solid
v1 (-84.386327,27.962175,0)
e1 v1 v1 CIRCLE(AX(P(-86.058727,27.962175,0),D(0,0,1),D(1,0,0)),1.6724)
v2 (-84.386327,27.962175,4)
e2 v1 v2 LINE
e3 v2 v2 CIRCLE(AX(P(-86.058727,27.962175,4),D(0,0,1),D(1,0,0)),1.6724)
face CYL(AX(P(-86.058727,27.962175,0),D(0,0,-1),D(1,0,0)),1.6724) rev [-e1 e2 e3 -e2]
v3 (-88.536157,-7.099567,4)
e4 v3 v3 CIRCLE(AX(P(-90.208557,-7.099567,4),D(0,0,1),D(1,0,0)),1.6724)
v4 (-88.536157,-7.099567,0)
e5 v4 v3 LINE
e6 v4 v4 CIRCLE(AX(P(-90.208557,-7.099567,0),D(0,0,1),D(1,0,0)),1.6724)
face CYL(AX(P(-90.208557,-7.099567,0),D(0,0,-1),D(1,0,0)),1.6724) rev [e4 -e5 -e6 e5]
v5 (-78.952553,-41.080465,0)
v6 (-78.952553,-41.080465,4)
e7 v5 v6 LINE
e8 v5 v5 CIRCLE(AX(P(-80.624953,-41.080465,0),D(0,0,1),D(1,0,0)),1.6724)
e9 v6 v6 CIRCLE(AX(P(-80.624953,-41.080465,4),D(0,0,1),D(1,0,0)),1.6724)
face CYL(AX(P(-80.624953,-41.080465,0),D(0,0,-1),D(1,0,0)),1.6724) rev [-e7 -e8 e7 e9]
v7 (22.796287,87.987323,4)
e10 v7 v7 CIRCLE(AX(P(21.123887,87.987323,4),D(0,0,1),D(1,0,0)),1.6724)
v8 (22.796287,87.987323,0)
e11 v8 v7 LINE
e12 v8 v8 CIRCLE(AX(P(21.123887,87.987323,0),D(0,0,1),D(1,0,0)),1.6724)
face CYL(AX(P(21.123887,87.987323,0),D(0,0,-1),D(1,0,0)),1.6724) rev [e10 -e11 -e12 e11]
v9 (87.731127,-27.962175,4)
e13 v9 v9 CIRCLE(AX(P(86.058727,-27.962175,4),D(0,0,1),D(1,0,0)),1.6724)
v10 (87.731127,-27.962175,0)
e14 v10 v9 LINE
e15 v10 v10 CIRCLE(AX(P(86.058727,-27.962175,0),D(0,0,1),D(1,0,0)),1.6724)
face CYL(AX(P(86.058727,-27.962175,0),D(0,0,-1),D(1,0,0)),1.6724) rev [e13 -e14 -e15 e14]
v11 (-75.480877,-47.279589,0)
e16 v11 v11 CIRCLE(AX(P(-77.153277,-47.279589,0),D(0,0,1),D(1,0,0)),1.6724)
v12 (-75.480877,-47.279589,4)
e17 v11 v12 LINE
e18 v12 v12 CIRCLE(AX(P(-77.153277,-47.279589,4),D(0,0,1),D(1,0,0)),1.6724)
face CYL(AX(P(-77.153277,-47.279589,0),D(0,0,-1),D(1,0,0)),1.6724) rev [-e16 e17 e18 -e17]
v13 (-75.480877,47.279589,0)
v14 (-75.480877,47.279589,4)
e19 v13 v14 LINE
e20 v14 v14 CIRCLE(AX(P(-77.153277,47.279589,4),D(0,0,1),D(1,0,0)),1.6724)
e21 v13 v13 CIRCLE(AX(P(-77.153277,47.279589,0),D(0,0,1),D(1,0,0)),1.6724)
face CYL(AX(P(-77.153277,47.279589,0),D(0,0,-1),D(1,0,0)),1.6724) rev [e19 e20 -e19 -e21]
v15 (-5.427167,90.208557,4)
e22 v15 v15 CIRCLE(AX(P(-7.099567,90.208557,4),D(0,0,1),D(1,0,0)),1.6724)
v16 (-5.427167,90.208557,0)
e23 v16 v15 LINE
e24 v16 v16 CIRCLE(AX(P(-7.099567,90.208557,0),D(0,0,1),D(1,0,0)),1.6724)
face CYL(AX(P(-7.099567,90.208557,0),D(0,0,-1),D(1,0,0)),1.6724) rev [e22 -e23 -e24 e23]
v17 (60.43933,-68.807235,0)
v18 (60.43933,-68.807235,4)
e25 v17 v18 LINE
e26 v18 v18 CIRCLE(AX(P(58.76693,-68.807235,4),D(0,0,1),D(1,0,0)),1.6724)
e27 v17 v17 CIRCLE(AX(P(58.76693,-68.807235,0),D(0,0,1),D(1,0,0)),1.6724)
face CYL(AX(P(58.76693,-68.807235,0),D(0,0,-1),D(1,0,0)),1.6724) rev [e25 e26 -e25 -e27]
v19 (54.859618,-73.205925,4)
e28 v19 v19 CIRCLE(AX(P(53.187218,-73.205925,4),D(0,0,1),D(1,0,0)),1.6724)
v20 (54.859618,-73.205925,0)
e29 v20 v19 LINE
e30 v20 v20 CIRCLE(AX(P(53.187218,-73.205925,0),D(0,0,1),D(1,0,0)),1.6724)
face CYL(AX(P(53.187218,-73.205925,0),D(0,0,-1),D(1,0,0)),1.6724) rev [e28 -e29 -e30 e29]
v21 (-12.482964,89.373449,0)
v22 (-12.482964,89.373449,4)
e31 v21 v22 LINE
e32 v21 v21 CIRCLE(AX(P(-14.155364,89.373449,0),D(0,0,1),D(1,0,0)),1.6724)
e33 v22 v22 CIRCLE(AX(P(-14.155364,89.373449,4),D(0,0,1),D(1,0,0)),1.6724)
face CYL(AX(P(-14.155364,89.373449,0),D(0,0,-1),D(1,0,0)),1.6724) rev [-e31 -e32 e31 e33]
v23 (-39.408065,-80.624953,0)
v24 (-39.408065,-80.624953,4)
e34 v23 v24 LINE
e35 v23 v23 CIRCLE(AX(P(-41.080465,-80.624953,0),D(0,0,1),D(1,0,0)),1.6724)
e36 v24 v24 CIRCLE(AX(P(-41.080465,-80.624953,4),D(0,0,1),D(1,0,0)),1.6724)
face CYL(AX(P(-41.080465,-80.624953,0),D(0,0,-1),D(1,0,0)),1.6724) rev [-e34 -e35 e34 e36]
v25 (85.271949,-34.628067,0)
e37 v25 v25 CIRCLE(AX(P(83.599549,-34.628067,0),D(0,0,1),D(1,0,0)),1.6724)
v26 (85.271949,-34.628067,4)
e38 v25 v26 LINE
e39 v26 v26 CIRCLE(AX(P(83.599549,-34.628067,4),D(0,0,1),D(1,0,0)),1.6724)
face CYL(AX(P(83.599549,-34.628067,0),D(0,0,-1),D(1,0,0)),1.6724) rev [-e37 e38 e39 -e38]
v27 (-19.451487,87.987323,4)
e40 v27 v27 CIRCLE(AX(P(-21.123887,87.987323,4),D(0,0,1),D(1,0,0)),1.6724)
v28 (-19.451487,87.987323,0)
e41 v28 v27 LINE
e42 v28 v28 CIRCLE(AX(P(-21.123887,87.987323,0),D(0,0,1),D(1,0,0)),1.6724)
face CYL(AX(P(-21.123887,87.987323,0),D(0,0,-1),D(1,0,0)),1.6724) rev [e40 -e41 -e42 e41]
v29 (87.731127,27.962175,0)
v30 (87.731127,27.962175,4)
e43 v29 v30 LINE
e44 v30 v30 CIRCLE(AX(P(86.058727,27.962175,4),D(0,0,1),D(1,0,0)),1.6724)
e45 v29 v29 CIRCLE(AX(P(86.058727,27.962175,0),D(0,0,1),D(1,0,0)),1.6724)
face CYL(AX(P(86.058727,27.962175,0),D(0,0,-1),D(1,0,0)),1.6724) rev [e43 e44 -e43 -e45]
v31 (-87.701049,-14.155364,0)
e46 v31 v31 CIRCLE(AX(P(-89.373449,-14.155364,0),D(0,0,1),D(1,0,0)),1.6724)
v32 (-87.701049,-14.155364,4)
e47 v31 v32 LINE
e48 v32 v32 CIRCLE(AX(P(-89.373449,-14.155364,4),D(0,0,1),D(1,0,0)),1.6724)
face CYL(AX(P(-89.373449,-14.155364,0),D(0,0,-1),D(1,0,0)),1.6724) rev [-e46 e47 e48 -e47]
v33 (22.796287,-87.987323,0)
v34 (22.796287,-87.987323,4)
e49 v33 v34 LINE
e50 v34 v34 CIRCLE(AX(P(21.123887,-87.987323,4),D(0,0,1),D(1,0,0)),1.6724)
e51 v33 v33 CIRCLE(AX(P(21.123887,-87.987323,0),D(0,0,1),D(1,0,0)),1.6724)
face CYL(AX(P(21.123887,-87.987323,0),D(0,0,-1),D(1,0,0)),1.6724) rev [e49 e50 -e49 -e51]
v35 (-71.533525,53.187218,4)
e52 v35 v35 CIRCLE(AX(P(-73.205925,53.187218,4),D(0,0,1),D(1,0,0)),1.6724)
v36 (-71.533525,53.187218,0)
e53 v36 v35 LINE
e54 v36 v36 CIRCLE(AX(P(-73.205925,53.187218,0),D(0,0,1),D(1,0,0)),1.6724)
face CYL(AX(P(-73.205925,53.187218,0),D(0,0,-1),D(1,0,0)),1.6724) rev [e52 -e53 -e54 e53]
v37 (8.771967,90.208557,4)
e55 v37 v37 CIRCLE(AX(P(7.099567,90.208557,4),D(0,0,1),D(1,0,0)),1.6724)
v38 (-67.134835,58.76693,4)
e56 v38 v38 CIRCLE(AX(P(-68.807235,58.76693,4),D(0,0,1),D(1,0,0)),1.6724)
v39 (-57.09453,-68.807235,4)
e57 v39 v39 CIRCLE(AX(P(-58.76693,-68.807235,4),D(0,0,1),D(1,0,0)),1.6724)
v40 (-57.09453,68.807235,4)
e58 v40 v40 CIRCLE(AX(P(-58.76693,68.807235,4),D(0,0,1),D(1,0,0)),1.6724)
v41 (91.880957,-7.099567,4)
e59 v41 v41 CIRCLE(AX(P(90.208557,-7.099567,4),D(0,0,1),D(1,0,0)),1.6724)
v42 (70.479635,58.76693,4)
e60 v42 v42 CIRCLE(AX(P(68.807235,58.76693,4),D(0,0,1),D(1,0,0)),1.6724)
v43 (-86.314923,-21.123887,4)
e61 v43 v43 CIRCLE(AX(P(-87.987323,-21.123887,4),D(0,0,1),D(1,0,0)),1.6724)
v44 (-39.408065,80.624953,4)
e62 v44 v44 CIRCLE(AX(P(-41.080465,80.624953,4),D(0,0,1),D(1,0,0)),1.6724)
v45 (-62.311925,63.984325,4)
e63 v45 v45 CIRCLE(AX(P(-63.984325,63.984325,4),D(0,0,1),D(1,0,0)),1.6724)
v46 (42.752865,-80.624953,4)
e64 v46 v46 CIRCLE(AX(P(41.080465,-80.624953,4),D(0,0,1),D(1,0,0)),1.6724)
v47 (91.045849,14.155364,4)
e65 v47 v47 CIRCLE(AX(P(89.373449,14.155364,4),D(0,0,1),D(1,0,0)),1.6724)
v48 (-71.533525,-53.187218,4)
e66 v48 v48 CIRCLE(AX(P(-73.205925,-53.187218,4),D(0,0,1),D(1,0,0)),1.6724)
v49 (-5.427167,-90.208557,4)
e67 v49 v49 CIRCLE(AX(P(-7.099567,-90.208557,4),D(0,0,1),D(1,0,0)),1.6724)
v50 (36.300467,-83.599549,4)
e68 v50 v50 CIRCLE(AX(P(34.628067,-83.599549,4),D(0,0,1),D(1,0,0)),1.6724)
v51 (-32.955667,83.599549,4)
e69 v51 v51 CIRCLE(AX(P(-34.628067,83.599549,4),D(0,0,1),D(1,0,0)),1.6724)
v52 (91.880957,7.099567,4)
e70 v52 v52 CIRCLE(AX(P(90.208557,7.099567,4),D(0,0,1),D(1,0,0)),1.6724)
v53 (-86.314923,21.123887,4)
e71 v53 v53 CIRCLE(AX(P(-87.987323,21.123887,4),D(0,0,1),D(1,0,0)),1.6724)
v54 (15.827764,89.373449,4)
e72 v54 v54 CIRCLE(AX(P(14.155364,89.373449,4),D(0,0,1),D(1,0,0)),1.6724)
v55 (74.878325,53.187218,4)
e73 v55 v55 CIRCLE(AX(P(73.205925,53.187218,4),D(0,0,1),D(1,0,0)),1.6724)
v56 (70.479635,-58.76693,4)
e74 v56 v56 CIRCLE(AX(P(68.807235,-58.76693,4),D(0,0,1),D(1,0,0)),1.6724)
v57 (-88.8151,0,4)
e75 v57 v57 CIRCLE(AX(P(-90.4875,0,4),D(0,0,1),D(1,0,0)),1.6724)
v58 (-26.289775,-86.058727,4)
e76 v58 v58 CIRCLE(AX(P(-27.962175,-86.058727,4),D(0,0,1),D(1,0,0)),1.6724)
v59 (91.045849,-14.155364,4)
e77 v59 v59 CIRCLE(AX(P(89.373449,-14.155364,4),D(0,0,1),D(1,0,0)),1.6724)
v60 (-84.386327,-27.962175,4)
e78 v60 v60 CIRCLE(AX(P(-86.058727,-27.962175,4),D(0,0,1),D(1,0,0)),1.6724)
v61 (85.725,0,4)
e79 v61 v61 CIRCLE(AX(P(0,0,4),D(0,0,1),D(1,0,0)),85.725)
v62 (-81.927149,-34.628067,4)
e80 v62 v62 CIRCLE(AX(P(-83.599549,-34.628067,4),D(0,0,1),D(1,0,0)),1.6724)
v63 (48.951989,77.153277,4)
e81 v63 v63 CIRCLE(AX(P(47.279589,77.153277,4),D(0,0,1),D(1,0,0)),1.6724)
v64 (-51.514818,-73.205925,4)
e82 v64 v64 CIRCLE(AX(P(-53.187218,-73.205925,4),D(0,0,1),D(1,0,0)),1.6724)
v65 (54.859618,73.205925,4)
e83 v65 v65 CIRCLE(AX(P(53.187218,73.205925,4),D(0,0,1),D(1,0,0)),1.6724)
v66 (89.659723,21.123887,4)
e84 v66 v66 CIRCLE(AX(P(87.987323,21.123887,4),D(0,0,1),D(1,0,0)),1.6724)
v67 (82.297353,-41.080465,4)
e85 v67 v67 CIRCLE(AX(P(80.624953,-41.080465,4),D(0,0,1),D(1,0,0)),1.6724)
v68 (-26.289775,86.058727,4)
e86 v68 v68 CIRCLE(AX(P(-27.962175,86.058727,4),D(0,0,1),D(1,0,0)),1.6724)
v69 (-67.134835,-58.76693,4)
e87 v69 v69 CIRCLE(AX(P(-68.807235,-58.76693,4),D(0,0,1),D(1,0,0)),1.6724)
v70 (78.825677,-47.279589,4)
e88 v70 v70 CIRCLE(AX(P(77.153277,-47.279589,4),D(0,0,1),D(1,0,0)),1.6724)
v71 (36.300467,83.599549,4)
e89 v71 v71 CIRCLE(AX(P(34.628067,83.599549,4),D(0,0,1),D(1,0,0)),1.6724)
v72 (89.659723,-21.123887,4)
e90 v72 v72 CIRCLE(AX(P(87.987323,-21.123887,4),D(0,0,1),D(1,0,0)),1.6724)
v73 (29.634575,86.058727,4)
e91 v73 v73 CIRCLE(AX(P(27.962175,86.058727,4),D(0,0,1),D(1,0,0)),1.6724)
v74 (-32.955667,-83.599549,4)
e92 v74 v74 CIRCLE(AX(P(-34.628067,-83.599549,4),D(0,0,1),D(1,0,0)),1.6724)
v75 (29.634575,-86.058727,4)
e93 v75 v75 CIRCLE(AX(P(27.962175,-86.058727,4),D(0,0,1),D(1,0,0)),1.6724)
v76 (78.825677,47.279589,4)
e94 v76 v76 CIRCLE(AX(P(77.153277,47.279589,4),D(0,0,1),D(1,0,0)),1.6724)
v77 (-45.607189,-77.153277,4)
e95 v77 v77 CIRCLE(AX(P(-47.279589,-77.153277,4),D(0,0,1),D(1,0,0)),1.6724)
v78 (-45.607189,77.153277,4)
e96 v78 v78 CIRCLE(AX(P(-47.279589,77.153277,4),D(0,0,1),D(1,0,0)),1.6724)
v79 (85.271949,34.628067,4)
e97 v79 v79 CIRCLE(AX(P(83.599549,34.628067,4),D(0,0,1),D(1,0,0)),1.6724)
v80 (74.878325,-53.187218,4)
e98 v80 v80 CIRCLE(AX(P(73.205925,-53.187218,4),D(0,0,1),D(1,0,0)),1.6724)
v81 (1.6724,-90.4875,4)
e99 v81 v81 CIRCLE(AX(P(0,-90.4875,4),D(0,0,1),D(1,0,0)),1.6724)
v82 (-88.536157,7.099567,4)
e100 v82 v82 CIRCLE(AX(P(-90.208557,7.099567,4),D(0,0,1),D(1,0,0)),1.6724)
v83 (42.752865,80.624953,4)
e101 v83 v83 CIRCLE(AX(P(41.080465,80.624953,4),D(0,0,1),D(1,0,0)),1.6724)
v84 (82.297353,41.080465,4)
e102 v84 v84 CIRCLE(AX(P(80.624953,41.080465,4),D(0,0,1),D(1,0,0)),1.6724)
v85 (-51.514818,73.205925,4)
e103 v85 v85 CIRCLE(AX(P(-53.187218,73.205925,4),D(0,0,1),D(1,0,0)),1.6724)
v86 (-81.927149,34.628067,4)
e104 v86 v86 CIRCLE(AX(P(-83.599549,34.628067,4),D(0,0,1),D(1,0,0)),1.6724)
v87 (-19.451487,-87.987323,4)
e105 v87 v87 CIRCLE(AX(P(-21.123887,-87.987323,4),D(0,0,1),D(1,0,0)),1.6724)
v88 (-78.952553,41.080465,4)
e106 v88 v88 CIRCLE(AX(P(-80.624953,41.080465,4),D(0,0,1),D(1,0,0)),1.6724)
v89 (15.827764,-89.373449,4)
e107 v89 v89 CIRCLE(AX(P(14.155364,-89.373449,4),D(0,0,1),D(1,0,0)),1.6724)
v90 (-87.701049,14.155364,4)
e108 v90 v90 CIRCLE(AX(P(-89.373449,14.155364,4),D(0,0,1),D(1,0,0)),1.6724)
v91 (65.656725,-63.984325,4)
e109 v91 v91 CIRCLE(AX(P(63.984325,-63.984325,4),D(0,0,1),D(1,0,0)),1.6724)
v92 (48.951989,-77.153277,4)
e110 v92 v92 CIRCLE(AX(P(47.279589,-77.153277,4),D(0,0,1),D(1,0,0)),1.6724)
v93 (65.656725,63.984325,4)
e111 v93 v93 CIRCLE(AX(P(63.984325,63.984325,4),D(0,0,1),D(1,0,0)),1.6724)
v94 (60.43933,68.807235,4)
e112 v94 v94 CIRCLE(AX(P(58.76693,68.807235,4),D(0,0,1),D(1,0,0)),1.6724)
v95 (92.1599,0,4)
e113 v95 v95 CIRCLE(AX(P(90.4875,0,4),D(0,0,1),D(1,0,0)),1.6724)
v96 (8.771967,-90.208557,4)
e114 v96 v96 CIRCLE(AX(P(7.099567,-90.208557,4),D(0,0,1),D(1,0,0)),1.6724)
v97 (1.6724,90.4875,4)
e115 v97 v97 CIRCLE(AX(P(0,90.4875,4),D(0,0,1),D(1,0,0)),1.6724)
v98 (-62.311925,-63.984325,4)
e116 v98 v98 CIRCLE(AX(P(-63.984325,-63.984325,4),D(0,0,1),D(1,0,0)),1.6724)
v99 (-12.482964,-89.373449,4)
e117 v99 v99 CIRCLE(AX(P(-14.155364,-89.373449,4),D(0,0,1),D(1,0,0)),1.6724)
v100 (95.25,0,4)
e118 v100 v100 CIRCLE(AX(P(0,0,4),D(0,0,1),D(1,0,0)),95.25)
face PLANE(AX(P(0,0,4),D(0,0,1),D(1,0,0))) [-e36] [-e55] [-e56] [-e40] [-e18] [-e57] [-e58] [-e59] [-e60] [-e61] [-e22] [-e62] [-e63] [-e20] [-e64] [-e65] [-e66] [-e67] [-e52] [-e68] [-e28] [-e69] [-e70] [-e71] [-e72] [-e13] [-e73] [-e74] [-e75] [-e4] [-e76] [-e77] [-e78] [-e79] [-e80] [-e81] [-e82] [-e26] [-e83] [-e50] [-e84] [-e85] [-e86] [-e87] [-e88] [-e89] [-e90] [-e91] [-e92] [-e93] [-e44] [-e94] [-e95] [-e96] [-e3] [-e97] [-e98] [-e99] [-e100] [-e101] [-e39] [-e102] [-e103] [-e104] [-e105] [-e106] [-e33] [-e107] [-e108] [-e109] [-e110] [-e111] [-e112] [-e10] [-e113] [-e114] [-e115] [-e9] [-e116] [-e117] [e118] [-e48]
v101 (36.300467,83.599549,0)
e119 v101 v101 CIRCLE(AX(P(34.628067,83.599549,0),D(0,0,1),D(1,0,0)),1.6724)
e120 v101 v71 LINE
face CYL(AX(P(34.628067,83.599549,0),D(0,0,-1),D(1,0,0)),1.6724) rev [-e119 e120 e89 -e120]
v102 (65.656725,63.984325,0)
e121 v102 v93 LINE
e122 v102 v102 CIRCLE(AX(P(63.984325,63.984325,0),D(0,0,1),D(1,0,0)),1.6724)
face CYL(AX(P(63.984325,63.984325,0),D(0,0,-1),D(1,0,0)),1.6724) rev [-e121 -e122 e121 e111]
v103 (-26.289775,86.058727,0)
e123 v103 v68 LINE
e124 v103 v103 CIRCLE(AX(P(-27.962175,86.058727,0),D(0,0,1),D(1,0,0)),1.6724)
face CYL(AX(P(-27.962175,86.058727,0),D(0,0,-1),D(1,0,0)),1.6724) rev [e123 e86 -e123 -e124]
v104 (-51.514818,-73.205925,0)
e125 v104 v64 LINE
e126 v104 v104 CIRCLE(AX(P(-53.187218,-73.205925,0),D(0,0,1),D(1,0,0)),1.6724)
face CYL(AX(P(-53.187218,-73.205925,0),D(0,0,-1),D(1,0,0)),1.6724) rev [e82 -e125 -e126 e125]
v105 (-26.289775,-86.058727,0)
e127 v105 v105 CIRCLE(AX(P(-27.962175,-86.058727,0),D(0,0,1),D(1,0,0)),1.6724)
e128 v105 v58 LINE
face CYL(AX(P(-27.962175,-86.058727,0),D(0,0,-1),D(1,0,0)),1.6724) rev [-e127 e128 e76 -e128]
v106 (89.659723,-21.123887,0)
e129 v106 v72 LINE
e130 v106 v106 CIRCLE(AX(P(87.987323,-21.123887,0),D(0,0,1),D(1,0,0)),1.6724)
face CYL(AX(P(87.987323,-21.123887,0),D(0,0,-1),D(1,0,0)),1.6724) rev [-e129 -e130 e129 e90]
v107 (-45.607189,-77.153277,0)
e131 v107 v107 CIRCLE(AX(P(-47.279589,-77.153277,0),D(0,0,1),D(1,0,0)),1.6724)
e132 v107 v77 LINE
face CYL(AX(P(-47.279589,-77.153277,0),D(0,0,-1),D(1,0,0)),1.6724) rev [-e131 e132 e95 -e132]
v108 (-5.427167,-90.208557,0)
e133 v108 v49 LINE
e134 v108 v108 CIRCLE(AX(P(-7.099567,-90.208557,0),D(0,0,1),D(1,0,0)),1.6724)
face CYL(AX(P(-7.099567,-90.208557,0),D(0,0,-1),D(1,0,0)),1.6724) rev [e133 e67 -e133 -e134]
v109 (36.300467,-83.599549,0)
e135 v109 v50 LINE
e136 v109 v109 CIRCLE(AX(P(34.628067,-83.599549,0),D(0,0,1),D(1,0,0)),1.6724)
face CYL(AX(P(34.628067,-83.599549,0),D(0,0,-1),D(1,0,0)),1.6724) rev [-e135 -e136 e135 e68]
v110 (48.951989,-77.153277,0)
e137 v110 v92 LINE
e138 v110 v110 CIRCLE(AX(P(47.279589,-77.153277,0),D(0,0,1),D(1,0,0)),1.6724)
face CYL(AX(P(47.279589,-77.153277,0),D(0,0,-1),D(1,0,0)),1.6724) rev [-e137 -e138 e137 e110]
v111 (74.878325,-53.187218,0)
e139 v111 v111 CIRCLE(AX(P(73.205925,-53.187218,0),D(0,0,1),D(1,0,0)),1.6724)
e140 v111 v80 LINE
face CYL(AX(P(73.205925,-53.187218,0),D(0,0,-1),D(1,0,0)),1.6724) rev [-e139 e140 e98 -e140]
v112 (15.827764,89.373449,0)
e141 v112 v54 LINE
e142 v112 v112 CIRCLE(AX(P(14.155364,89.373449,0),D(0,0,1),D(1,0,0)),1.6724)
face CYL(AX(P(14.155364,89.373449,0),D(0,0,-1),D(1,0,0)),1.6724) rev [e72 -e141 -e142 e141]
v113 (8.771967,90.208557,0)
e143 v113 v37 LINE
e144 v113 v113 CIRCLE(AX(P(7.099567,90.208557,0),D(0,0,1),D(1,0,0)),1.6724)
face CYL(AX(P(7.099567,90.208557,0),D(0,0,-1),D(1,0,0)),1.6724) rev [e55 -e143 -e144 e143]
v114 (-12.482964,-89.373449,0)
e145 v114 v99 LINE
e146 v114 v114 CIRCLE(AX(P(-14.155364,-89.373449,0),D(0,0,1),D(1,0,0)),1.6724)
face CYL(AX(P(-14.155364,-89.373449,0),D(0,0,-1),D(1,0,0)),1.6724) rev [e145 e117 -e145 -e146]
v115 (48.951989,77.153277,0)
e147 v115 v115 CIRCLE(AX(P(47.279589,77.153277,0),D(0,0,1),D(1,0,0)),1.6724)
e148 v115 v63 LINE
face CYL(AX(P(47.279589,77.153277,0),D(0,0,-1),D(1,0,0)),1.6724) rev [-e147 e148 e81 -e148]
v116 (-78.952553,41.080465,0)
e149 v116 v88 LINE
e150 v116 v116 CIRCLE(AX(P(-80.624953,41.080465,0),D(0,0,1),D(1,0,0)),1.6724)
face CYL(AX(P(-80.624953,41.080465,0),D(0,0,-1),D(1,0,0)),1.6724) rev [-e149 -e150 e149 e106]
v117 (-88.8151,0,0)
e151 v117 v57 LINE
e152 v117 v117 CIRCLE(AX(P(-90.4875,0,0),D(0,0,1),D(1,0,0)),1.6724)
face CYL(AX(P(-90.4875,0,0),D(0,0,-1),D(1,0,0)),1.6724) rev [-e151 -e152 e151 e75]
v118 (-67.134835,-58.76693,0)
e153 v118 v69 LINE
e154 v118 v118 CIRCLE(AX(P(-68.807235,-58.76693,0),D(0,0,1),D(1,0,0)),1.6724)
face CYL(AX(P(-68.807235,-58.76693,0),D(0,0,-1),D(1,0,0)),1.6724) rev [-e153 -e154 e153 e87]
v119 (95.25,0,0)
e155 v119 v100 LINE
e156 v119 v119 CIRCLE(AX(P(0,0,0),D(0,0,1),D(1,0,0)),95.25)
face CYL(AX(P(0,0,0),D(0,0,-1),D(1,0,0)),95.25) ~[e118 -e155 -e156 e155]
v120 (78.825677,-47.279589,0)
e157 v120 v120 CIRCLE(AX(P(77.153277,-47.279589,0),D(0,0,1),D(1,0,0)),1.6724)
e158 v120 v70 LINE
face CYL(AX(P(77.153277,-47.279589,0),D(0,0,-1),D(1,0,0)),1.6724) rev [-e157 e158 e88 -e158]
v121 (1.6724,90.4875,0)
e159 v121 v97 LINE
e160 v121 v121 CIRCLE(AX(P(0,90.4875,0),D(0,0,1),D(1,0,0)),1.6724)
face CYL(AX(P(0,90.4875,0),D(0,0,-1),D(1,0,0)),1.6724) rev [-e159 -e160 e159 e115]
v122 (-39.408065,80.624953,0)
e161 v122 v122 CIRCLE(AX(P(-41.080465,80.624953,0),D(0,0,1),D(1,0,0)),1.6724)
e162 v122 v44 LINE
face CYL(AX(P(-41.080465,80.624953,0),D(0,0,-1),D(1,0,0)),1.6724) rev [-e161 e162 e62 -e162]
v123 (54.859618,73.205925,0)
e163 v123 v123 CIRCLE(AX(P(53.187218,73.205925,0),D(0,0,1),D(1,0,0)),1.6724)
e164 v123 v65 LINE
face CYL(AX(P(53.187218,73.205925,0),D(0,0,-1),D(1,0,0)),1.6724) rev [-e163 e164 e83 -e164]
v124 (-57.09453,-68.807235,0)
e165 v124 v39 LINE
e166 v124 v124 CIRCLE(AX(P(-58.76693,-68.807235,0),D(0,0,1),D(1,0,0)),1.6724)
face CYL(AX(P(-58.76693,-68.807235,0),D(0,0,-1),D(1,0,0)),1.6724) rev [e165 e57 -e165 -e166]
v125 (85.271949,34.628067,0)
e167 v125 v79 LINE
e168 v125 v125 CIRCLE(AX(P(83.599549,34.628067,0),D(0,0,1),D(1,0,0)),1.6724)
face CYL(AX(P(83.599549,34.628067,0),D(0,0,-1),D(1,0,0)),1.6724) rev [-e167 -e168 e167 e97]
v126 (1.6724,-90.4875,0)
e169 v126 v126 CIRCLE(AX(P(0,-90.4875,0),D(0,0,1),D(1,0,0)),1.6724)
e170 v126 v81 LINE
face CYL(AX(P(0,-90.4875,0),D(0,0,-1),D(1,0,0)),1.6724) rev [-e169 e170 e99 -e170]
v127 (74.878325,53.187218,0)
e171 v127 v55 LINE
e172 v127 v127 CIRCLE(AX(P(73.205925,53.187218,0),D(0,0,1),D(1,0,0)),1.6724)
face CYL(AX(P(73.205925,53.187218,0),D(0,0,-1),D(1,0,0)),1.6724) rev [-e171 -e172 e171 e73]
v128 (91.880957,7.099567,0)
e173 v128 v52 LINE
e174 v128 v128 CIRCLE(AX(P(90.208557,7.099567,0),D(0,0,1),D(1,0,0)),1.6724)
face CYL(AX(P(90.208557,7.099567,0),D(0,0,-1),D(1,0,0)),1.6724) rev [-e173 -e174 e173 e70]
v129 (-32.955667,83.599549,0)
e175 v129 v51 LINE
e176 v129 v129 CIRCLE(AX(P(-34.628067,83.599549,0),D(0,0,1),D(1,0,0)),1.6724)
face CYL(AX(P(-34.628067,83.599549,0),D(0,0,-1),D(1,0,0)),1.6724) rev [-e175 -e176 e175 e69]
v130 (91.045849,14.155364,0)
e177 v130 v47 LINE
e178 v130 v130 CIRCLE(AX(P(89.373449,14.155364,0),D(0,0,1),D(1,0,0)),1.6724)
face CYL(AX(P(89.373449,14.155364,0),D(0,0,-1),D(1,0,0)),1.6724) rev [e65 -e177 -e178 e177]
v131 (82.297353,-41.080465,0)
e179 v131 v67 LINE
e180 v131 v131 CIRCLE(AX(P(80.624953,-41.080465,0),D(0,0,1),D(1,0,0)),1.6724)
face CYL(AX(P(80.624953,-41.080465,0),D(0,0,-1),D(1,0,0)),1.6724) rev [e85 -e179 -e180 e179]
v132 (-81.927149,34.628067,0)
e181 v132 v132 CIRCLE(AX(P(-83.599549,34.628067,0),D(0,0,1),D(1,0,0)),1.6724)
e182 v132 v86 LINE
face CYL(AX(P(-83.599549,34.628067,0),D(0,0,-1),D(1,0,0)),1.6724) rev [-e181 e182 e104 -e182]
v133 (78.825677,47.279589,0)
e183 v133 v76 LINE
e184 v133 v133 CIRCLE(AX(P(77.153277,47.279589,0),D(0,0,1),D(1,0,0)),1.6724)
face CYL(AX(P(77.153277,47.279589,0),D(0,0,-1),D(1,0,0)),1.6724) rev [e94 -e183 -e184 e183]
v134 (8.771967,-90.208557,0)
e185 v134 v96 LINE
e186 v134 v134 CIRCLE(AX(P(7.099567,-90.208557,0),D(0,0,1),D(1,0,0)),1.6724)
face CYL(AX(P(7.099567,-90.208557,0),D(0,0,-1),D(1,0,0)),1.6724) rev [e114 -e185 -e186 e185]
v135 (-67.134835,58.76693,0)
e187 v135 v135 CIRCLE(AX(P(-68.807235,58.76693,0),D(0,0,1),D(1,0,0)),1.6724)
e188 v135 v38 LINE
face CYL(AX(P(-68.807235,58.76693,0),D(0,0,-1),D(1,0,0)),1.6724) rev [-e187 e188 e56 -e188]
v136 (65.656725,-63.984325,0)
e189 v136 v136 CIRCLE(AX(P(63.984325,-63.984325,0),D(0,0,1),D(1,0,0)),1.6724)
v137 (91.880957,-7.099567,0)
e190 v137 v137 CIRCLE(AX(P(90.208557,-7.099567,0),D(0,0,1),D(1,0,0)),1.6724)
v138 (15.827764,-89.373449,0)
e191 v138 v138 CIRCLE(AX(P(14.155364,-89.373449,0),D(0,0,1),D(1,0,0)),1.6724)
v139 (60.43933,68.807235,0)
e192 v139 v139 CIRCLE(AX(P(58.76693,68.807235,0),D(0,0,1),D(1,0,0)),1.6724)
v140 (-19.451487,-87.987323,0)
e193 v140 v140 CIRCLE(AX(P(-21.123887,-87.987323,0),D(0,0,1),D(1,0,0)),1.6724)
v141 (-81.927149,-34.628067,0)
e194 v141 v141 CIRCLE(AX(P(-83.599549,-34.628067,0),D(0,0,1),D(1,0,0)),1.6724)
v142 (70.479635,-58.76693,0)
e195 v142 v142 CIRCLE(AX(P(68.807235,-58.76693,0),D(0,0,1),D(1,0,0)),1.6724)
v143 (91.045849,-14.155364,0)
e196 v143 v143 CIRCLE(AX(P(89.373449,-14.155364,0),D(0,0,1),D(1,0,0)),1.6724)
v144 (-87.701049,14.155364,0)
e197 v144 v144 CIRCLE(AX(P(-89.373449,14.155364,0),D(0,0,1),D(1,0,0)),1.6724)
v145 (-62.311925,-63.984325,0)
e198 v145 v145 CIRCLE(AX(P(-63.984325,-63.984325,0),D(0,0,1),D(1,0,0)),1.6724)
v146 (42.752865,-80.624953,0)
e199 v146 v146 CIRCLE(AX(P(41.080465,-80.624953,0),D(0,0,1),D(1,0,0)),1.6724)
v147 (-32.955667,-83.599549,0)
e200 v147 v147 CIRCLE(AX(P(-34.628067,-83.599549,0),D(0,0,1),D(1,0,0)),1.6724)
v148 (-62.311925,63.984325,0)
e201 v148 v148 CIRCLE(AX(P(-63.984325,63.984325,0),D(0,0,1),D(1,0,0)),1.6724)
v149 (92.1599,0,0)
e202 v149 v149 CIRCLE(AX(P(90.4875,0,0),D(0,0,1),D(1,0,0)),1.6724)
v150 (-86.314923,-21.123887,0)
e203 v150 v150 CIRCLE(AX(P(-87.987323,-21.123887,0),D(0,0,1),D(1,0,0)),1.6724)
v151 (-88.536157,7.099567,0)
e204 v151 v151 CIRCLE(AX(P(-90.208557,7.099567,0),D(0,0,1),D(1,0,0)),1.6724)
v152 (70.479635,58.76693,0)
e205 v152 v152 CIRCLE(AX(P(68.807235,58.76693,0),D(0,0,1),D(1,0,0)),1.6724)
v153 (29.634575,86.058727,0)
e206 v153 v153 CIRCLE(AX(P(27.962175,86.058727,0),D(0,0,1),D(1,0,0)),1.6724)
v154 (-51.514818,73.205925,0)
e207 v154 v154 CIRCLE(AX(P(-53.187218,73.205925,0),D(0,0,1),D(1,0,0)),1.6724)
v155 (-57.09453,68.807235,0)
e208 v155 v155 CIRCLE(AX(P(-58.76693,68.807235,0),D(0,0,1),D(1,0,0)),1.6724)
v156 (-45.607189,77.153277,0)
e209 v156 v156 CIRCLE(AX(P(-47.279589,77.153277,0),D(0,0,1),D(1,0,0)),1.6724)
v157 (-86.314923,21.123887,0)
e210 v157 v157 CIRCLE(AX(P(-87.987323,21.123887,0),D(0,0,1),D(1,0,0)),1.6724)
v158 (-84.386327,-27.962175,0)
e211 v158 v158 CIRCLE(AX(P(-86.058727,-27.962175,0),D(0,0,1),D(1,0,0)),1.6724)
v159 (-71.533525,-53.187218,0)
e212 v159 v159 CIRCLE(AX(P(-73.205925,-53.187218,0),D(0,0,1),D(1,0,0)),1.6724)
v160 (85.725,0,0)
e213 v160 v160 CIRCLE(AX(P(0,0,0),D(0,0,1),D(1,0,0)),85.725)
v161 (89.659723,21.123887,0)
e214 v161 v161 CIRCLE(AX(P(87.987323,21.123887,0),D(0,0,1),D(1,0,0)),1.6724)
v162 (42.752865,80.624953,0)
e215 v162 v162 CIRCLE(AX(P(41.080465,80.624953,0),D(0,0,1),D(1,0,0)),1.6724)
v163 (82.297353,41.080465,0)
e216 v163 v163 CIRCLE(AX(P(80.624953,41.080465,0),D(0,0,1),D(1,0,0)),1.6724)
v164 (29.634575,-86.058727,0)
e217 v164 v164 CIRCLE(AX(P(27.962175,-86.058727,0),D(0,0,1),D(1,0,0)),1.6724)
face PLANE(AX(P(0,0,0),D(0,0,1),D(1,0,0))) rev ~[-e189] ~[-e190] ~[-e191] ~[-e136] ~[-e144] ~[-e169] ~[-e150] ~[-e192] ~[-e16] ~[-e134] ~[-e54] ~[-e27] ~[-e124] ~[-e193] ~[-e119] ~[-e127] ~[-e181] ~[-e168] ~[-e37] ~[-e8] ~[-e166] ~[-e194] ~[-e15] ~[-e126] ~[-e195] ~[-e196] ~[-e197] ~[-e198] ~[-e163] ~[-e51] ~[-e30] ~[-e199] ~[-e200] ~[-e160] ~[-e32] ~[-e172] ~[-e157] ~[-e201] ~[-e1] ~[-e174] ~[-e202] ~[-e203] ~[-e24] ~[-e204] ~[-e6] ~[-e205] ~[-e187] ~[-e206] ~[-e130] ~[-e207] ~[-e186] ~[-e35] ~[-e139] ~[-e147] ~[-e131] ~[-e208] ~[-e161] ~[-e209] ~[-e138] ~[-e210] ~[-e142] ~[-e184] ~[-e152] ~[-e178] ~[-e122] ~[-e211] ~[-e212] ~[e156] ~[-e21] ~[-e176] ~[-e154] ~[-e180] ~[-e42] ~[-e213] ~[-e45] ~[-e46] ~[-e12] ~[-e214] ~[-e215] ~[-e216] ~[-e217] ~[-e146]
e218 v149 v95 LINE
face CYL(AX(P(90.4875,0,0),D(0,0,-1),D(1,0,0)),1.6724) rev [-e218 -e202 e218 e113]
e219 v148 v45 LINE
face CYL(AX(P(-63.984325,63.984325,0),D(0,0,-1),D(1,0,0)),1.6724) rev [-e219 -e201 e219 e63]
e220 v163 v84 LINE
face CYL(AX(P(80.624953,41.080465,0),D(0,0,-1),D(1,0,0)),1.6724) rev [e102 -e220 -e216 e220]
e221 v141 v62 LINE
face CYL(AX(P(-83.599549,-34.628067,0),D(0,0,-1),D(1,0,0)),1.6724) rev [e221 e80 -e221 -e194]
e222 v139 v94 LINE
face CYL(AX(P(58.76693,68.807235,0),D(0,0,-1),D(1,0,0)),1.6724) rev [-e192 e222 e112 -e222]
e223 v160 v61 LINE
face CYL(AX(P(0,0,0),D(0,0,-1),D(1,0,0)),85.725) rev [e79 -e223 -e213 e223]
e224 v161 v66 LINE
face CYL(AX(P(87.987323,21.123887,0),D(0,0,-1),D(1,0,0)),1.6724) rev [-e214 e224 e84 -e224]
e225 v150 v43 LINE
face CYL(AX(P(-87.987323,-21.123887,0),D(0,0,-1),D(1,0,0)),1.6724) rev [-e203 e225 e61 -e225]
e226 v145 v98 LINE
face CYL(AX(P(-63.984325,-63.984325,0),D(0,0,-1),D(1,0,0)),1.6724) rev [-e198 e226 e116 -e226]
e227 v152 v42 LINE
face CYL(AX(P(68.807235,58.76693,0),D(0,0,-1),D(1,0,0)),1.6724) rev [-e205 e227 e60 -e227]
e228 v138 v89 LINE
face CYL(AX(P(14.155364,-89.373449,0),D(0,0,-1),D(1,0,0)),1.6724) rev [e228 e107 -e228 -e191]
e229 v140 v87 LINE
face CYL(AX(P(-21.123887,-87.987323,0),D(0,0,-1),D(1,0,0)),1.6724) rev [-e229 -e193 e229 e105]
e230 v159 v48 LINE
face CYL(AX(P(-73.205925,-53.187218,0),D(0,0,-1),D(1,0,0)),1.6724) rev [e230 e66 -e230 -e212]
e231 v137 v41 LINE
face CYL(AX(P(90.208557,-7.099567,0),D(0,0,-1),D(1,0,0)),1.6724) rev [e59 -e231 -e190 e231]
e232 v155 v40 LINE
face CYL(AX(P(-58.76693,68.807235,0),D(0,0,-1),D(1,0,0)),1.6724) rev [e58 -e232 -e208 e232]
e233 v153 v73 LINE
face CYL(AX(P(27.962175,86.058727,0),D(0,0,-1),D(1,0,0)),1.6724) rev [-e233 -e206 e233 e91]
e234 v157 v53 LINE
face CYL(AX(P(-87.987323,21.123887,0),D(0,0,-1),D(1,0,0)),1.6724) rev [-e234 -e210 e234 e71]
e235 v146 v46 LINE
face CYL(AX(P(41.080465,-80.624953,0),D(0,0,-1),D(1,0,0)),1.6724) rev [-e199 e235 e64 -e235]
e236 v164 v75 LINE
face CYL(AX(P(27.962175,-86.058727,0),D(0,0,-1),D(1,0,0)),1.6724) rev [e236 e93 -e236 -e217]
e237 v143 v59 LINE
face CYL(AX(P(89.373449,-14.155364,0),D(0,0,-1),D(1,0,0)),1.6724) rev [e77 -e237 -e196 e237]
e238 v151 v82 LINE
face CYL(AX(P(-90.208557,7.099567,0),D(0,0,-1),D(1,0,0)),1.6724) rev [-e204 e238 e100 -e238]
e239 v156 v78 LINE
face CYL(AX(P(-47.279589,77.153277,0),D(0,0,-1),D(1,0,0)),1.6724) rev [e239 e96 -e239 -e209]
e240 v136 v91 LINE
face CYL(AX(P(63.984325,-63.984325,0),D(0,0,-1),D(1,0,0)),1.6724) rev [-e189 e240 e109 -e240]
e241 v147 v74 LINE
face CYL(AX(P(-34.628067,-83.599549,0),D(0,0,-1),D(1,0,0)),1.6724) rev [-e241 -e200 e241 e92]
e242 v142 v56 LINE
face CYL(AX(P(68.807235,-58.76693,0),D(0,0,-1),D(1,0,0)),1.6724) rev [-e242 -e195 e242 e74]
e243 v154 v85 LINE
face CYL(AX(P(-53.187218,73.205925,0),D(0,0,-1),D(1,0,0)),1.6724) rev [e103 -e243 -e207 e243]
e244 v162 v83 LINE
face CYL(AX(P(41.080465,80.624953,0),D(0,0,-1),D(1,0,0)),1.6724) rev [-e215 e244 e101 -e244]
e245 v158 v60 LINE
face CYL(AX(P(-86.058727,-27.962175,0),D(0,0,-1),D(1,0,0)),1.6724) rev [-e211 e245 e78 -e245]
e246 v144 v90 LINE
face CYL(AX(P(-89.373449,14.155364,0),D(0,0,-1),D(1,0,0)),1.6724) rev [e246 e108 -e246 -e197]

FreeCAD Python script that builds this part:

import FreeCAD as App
import Part
import Sketcher
from FreeCAD import Vector
Q = App.Units.Quantity

doc = App.newDocument("Part")
body = doc.addObject("PartDesign::Body", "Body")

sketch1 = doc.addObject("Sketcher::SketchObject", "Sketch")
body.addObject(sketch1)
sketch1.AttachmentSupport = (doc.XY_Plane, [""])
sketch1.MapMode = "FlatFace"
sketch1.addGeometry(Part.Circle(Vector(0, 0, 0), Vector(0, 0, 1), 95.25), False)
sketch1.addGeometry(Part.Circle(Vector(-47.279589, -77.153277, 0), Vector(0, 0, 1), 1.6724), False)
sketch1.addGeometry(Part.Circle(Vector(-53.187218, -73.205925, 0), Vector(0, 0, 1), 1.6724), False)
sketch1.addGeometry(Part.Circle(Vector(-73.205925, -53.187218, 0), Vector(0, 0, 1), 1.6724), False)
sketch1.addGeometry(Part.Circle(Vector(-77.153277, -47.279589, 0), Vector(0, 0, 1), 1.6724), False)
sketch1.addGeometry(Part.Circle(Vector(-63.984325, -63.984325, 0), Vector(0, 0, 1), 1.6724), False)
sketch1.addGeometry(Part.Circle(Vector(-58.76693, -68.807235, 0), Vector(0, 0, 1), 1.6724), False)
sketch1.addGeometry(Part.Circle(Vector(-68.807235, -58.76693, 0), Vector(0, 0, 1), 1.6724), False)
sketch1.addGeometry(Part.Circle(Vector(-34.628067, -83.599549, 0), Vector(0, 0, 1), 1.6724), False)
sketch1.addGeometry(Part.Circle(Vector(-27.962175, -86.058727, 0), Vector(0, 0, 1), 1.6724), False)
sketch1.addGeometry(Part.Circle(Vector(-41.080465, -80.624953, 0), Vector(0, 0, 1), 1.6724), False)
sketch1.addGeometry(Part.Circle(Vector(-21.123887, -87.987323, 0), Vector(0, 0, 1), 1.6724), False)
sketch1.addGeometry(Part.Circle(Vector(-14.155364, -89.373449, 0), Vector(0, 0, 1), 1.6724), False)
sketch1.addGeometry(Part.Circle(Vector(-7.099567, -90.208557, 0), Vector(0, 0, 1), 1.6724), False)
sketch1.addGeometry(Part.Circle(Vector(-83.599549, -34.628067, 0), Vector(0, 0, 1), 1.6724), False)
sketch1.addGeometry(Part.Circle(Vector(-80.624953, -41.080465, 0), Vector(0, 0, 1), 1.6724), False)
sketch1.addGeometry(Part.Circle(Vector(-86.058727, -27.962175, 0), Vector(0, 0, 1), 1.6724), False)
sketch1.addGeometry(Part.Circle(Vector(-87.987323, -21.123887, 0), Vector(0, 0, 1), 1.6724), False)
sketch1.addGeometry(Part.Circle(Vector(-89.373449, -14.155364, 0), Vector(0, 0, 1), 1.6724), False)
sketch1.addGeometry(Part.Circle(Vector(-90.208557, -7.099567, 0), Vector(0, 0, 1), 1.6724), False)
sketch1.addGeometry(Part.Circle(Vector(0, -90.4875, 0), Vector(0, 0, 1), 1.6724), False)
sketch1.addGeometry(Part.Circle(Vector(7.099567, -90.208557, 0), Vector(0, 0, 1), 1.6724), False)
sketch1.addGeometry(Part.Circle(Vector(14.155364, -89.373449, 0), Vector(0, 0, 1), 1.6724), False)
sketch1.addGeometry(Part.Circle(Vector(21.123887, -87.987323, 0), Vector(0, 0, 1), 1.6724), False)
sketch1.addGeometry(Part.Circle(Vector(27.962175, -86.058727, 0), Vector(0, 0, 1), 1.6724), False)
sketch1.addGeometry(Part.Circle(Vector(34.628067, -83.599549, 0), Vector(0, 0, 1), 1.6724), False)
sketch1.addGeometry(Part.Circle(Vector(41.080465, -80.624953, 0), Vector(0, 0, 1), 1.6724), False)
sketch1.addGeometry(Part.Circle(Vector(47.279589, -77.153277, 0), Vector(0, 0, 1), 1.6724), False)
sketch1.addGeometry(Part.Circle(Vector(53.187218, -73.205925, 0), Vector(0, 0, 1), 1.6724), False)
sketch1.addGeometry(Part.Circle(Vector(58.76693, -68.807235, 0), Vector(0, 0, 1), 1.6724), False)
sketch1.addGeometry(Part.Circle(Vector(63.984325, -63.984325, 0), Vector(0, 0, 1), 1.6724), False)
sketch1.addGeometry(Part.Circle(Vector(68.807235, -58.76693, 0), Vector(0, 0, 1), 1.6724), False)
sketch1.addGeometry(Part.Circle(Vector(73.205925, -53.187218, 0), Vector(0, 0, 1), 1.6724), False)
sketch1.addGeometry(Part.Circle(Vector(77.153277, -47.279589, 0), Vector(0, 0, 1), 1.6724), False)
sketch1.addGeometry(Part.Circle(Vector(80.624953, -41.080465, 0), Vector(0, 0, 1), 1.6724), False)
sketch1.addGeometry(Part.Circle(Vector(83.599549, -34.628067, 0), Vector(0, 0, 1), 1.6724), False)
sketch1.addGeometry(Part.Circle(Vector(86.058727, -27.962175, 0), Vector(0, 0, 1), 1.6724), False)
sketch1.addGeometry(Part.Circle(Vector(87.987323, -21.123887, 0), Vector(0, 0, 1), 1.6724), False)
sketch1.addGeometry(Part.Circle(Vector(89.373449, -14.155364, 0), Vector(0, 0, 1), 1.6724), False)
sketch1.addGeometry(Part.Circle(Vector(90.208557, -7.099567, 0), Vector(0, 0, 1), 1.6724), False)
sketch1.addGeometry(Part.Circle(Vector(-90.4875, 0, 0), Vector(0, 0, 1), 1.6724), False)
sketch1.addGeometry(Part.Circle(Vector(-90.208557, 7.099567, 0), Vector(0, 0, 1), 1.6724), False)
sketch1.addGeometry(Part.Circle(Vector(-89.373449, 14.155364, 0), Vector(0, 0, 1), 1.6724), False)
sketch1.addGeometry(Part.Circle(Vector(-87.987323, 21.123887, 0), Vector(0, 0, 1), 1.6724), False)
sketch1.addGeometry(Part.Circle(Vector(-86.058727, 27.962175, 0), Vector(0, 0, 1), 1.6724), False)
sketch1.addGeometry(Part.Circle(Vector(-83.599549, 34.628067, 0), Vector(0, 0, 1), 1.6724), False)
sketch1.addGeometry(Part.Circle(Vector(-80.624953, 41.080465, 0), Vector(0, 0, 1), 1.6724), False)
sketch1.addGeometry(Part.Circle(Vector(-77.153277, 47.279589, 0), Vector(0, 0, 1), 1.6724), False)
sketch1.addGeometry(Part.Circle(Vector(-73.205925, 53.187218, 0), Vector(0, 0, 1), 1.6724), False)
sketch1.addGeometry(Part.Circle(Vector(-68.807235, 58.76693, 0), Vector(0, 0, 1), 1.6724), False)
sketch1.addGeometry(Part.Circle(Vector(-63.984325, 63.984325, 0), Vector(0, 0, 1), 1.6724), False)
sketch1.addGeometry(Part.Circle(Vector(-58.76693, 68.807235, 0), Vector(0, 0, 1), 1.6724), False)
sketch1.addGeometry(Part.Circle(Vector(-53.187218, 73.205925, 0), Vector(0, 0, 1), 1.6724), False)
sketch1.addGeometry(Part.Circle(Vector(-47.279589, 77.153277, 0), Vector(0, 0, 1), 1.6724), False)
sketch1.addGeometry(Part.Circle(Vector(-41.080465, 80.624953, 0), Vector(0, 0, 1), 1.6724), False)
sketch1.addGeometry(Part.Circle(Vector(-34.628067, 83.599549, 0), Vector(0, 0, 1), 1.6724), False)
sketch1.addGeometry(Part.Circle(Vector(-27.962175, 86.058727, 0), Vector(0, 0, 1), 1.6724), False)
sketch1.addGeometry(Part.Circle(Vector(-21.123887, 87.987323, 0), Vector(0, 0, 1), 1.6724), False)
sketch1.addGeometry(Part.Circle(Vector(-14.155364, 89.373449, 0), Vector(0, 0, 1), 1.6724), False)
sketch1.addGeometry(Part.Circle(Vector(-7.099567, 90.208557, 0), Vector(0, 0, 1), 1.6724), False)
sketch1.addGeometry(Part.Circle(Vector(0, 0, 0), Vector(0, 0, 1), 85.725), False)
sketch1.addGeometry(Part.Circle(Vector(90.4875, 0, 0), Vector(0, 0, 1), 1.6724), False)
sketch1.addGeometry(Part.Circle(Vector(90.208557, 7.099567, 0), Vector(0, 0, 1), 1.6724), False)
sketch1.addGeometry(Part.Circle(Vector(89.373449, 14.155364, 0), Vector(0, 0, 1), 1.6724), False)
sketch1.addGeometry(Part.Circle(Vector(87.987323, 21.123887, 0), Vector(0, 0, 1), 1.6724), False)
sketch1.addGeometry(Part.Circle(Vector(86.058727, 27.962175, 0), Vector(0, 0, 1), 1.6724), False)
sketch1.addGeometry(Part.Circle(Vector(80.624953, 41.080465, 0), Vector(0, 0, 1), 1.6724), False)
sketch1.addGeometry(Part.Circle(Vector(83.599549, 34.628067, 0), Vector(0, 0, 1), 1.6724), False)
sketch1.addGeometry(Part.Circle(Vector(0, 90.4875, 0), Vector(0, 0, 1), 1.6724), False)
sketch1.addGeometry(Part.Circle(Vector(7.099567, 90.208557, 0), Vector(0, 0, 1), 1.6724), False)
sketch1.addGeometry(Part.Circle(Vector(14.155364, 89.373449, 0), Vector(0, 0, 1), 1.6724), False)
sketch1.addGeometry(Part.Circle(Vector(21.123887, 87.987323, 0), Vector(0, 0, 1), 1.6724), False)
sketch1.addGeometry(Part.Circle(Vector(41.080465, 80.624953, 0), Vector(0, 0, 1), 1.6724), False)
sketch1.addGeometry(Part.Circle(Vector(27.962175, 86.058727, 0), Vector(0, 0, 1), 1.6724), False)
sketch1.addGeometry(Part.Circle(Vector(34.628067, 83.599549, 0), Vector(0, 0, 1), 1.6724), False)
sketch1.addGeometry(Part.Circle(Vector(68.807235, 58.76693, 0), Vector(0, 0, 1), 1.6724), False)
sketch1.addGeometry(Part.Circle(Vector(58.76693, 68.807235, 0), Vector(0, 0, 1), 1.6724), False)
sketch1.addGeometry(Part.Circle(Vector(63.984325, 63.984325, 0), Vector(0, 0, 1), 1.6724), False)
sketch1.addGeometry(Part.Circle(Vector(77.153277, 47.279589, 0), Vector(0, 0, 1), 1.6724), False)
sketch1.addGeometry(Part.Circle(Vector(73.205925, 53.187218, 0), Vector(0, 0, 1), 1.6724), False)
sketch1.addGeometry(Part.Circle(Vector(53.187218, 73.205925, 0), Vector(0, 0, 1), 1.6724), False)
sketch1.addGeometry(Part.Circle(Vector(47.279589, 77.153277, 0), Vector(0, 0, 1), 1.6724), False)
sketch1.addConstraint(Sketcher.Constraint("Coincident", 0, 3, -1, 1))
sketch1.addConstraint(Sketcher.Constraint("Coincident", 60, 3, -1, 1))
sketch1.addConstraint(Sketcher.Constraint("Equal", 1, 2))
sketch1.addConstraint(Sketcher.Constraint("Equal", 2, 3))
sketch1.addConstraint(Sketcher.Constraint("Equal", 3, 4))
sketch1.addConstraint(Sketcher.Constraint("Equal", 4, 5))
sketch1.addConstraint(Sketcher.Constraint("Equal", 5, 6))
sketch1.addConstraint(Sketcher.Constraint("Equal", 6, 7))
sketch1.addConstraint(Sketcher.Constraint("Equal", 7, 8))
sketch1.addConstraint(Sketcher.Constraint("Equal", 8, 9))
sketch1.addConstraint(Sketcher.Constraint("Equal", 9, 10))
sketch1.addConstraint(Sketcher.Constraint("Equal", 10, 11))
sketch1.addConstraint(Sketcher.Constraint("Equal", 11, 12))
sketch1.addConstraint(Sketcher.Constraint("Equal", 12, 13))
sketch1.addConstraint(Sketcher.Constraint("Equal", 13, 14))
sketch1.addConstraint(Sketcher.Constraint("Equal", 14, 15))
sketch1.addConstraint(Sketcher.Constraint("Equal", 15, 16))
sketch1.addConstraint(Sketcher.Constraint("Equal", 16, 17))
sketch1.addConstraint(Sketcher.Constraint("Equal", 17, 18))
sketch1.addConstraint(Sketcher.Constraint("Equal", 18, 19))
sketch1.addConstraint(Sketcher.Constraint("Equal", 19, 20))
sketch1.addConstraint(Sketcher.Constraint("Equal", 20, 21))
sketch1.addConstraint(Sketcher.Constraint("Equal", 21, 22))
sketch1.addConstraint(Sketcher.Constraint("Equal", 22, 23))
sketch1.addConstraint(Sketcher.Constraint("Equal", 23, 24))
sketch1.addConstraint(Sketcher.Constraint("Equal", 24, 25))
sketch1.addConstraint(Sketcher.Constraint("Equal", 25, 26))
sketch1.addConstraint(Sketcher.Constraint("Equal", 26, 27))
sketch1.addConstraint(Sketcher.Constraint("Equal", 27, 28))
sketch1.addConstraint(Sketcher.Constraint("Equal", 28, 29))
sketch1.addConstraint(Sketcher.Constraint("Equal", 29, 30))
sketch1.addConstraint(Sketcher.Constraint("Equal", 30, 31))
sketch1.addConstraint(Sketcher.Constraint("Equal", 31, 32))
sketch1.addConstraint(Sketcher.Constraint("Equal", 32, 33))
sketch1.addConstraint(Sketcher.Constraint("Equal", 33, 34))
sketch1.addConstraint(Sketcher.Constraint("Equal", 34, 35))
sketch1.addConstraint(Sketcher.Constraint("Equal", 35, 36))
sketch1.addConstraint(Sketcher.Constraint("Equal", 36, 37))
sketch1.addConstraint(Sketcher.Constraint("Equal", 37, 38))
sketch1.addConstraint(Sketcher.Constraint("Equal", 38, 39))
sketch1.addConstraint(Sketcher.Constraint("Equal", 39, 40))
sketch1.addConstraint(Sketcher.Constraint("Equal", 40, 41))
sketch1.addConstraint(Sketcher.Constraint("Equal", 41, 42))
sketch1.addConstraint(Sketcher.Constraint("Equal", 42, 43))
sketch1.addConstraint(Sketcher.Constraint("Equal", 43, 44))
sketch1.addConstraint(Sketcher.Constraint("Equal", 44, 45))
sketch1.addConstraint(Sketcher.Constraint("Equal", 45, 46))
sketch1.addConstraint(Sketcher.Constraint("Equal", 46, 47))
sketch1.addConstraint(Sketcher.Constraint("Equal", 47, 48))
sketch1.addConstraint(Sketcher.Constraint("Equal", 48, 49))
sketch1.addConstraint(Sketcher.Constraint("Equal", 49, 50))
sketch1.addConstraint(Sketcher.Constraint("Equal", 50, 51))
sketch1.addConstraint(Sketcher.Constraint("Equal", 51, 52))
sketch1.addConstraint(Sketcher.Constraint("Equal", 52, 53))
sketch1.addConstraint(Sketcher.Constraint("Equal", 53, 54))
sketch1.addConstraint(Sketcher.Constraint("Equal", 54, 55))
sketch1.addConstraint(Sketcher.Constraint("Equal", 55, 56))
sketch1.addConstraint(Sketcher.Constraint("Equal", 56, 57))
sketch1.addConstraint(Sketcher.Constraint("Equal", 57, 58))
sketch1.addConstraint(Sketcher.Constraint("Equal", 58, 59))
sketch1.addConstraint(Sketcher.Constraint("Equal", 59, 61))
sketch1.addConstraint(Sketcher.Constraint("Equal", 61, 62))
sketch1.addConstraint(Sketcher.Constraint("Equal", 62, 63))
sketch1.addConstraint(Sketcher.Constraint("Equal", 63, 64))
sketch1.addConstraint(Sketcher.Constraint("Equal", 64, 65))
sketch1.addConstraint(Sketcher.Constraint("Equal", 65, 66))
sketch1.addConstraint(Sketcher.Constraint("Equal", 66, 67))
sketch1.addConstraint(Sketcher.Constraint("Equal", 67, 68))
sketch1.addConstraint(Sketcher.Constraint("Equal", 68, 69))
sketch1.addConstraint(Sketcher.Constraint("Equal", 69, 70))
sketch1.addConstraint(Sketcher.Constraint("Equal", 70, 71))
sketch1.addConstraint(Sketcher.Constraint("Equal", 71, 72))
sketch1.addConstraint(Sketcher.Constraint("Equal", 72, 73))
sketch1.addConstraint(Sketcher.Constraint("Equal", 73, 74))
sketch1.addConstraint(Sketcher.Constraint("Equal", 74, 75))
sketch1.addConstraint(Sketcher.Constraint("Equal", 75, 76))
sketch1.addConstraint(Sketcher.Constraint("Equal", 76, 77))
sketch1.addConstraint(Sketcher.Constraint("Equal", 77, 78))
sketch1.addConstraint(Sketcher.Constraint("Equal", 78, 79))
sketch1.addConstraint(Sketcher.Constraint("Equal", 79, 80))
sketch1.addConstraint(Sketcher.Constraint("Equal", 80, 81))
sketch1.addConstraint(Sketcher.Constraint("Symmetric", 39, 3, 41, 3, -1, 1))
sketch1.addConstraint(Sketcher.Constraint("Symmetric", 38, 3, 42, 3, -1, 1))
sketch1.addConstraint(Sketcher.Constraint("Symmetric", 37, 3, 43, 3, -1, 1))
sketch1.addConstraint(Sketcher.Constraint("Symmetric", 36, 3, 44, 3, -1, 1))
sketch1.addConstraint(Sketcher.Constraint("Symmetric", 35, 3, 45, 3, -1, 1))
sketch1.addConstraint(Sketcher.Constraint("Symmetric", 34, 3, 46, 3, -1, 1))
sketch1.addConstraint(Sketcher.Constraint("Symmetric", 33, 3, 47, 3, -1, 1))
sketch1.addConstraint(Sketcher.Constraint("Symmetric", 32, 3, 48, 3, -1, 1))
sketch1.addConstraint(Sketcher.Constraint("Symmetric", 31, 3, 49, 3, -1, 1))
sketch1.addConstraint(Sketcher.Constraint("Symmetric", 30, 3, 50, 3, -1, 1))
sketch1.addConstraint(Sketcher.Constraint("Symmetric", 29, 3, 51, 3, -1, 1))
sketch1.addConstraint(Sketcher.Constraint("Symmetric", 28, 3, 52, 3, -1, 1))
sketch1.addConstraint(Sketcher.Constraint("Symmetric", 27, 3, 53, 3, -1, 1))
sketch1.addConstraint(Sketcher.Constraint("Symmetric", 26, 3, 54, 3, -1, 1))
sketch1.addConstraint(Sketcher.Constraint("Symmetric", 25, 3, 55, 3, -1, 1))
sketch1.addConstraint(Sketcher.Constraint("Symmetric", 24, 3, 56, 3, -1, 1))
sketch1.addConstraint(Sketcher.Constraint("Symmetric", 23, 3, 57, 3, -1, 1))
sketch1.addConstraint(Sketcher.Constraint("Symmetric", 22, 3, 58, 3, -1, 1))
sketch1.addConstraint(Sketcher.Constraint("Symmetric", 21, 3, 59, 3, -1, 1))
sketch1.addConstraint(Sketcher.Constraint("Symmetric", 40, 3, 61, 3, -1, 1))
sketch1.addConstraint(Sketcher.Constraint("Symmetric", 19, 3, 62, 3, -1, 1))
sketch1.addConstraint(Sketcher.Constraint("Symmetric", 18, 3, 63, 3, -1, 1))
sketch1.addConstraint(Sketcher.Constraint("Symmetric", 17, 3, 64, 3, -1, 1))
sketch1.addConstraint(Sketcher.Constraint("Symmetric", 16, 3, 65, 3, -1, 1))
sketch1.addConstraint(Sketcher.Constraint("Symmetric", 15, 3, 66, 3, -1, 1))
sketch1.addConstraint(Sketcher.Constraint("Symmetric", 14, 3, 67, 3, -1, 1))
sketch1.addConstraint(Sketcher.Constraint("Symmetric", 20, 3, 68, 3, -1, 1))
sketch1.addConstraint(Sketcher.Constraint("Symmetric", 13, 3, 69, 3, -1, 1))
sketch1.addConstraint(Sketcher.Constraint("Symmetric", 12, 3, 70, 3, -1, 1))
sketch1.addConstraint(Sketcher.Constraint("Symmetric", 11, 3, 71, 3, -1, 1))
sketch1.addConstraint(Sketcher.Constraint("Symmetric", 10, 3, 72, 3, -1, 1))
sketch1.addConstraint(Sketcher.Constraint("Symmetric", 9, 3, 73, 3, -1, 1))
sketch1.addConstraint(Sketcher.Constraint("Symmetric", 8, 3, 74, 3, -1, 1))
sketch1.addConstraint(Sketcher.Constraint("Symmetric", 7, 3, 75, 3, -1, 1))
sketch1.addConstraint(Sketcher.Constraint("Symmetric", 6, 3, 76, 3, -1, 1))
sketch1.addConstraint(Sketcher.Constraint("Symmetric", 5, 3, 77, 3, -1, 1))
sketch1.addConstraint(Sketcher.Constraint("Symmetric", 4, 3, 78, 3, -1, 1))
sketch1.addConstraint(Sketcher.Constraint("Symmetric", 3, 3, 79, 3, -1, 1))
sketch1.addConstraint(Sketcher.Constraint("Symmetric", 2, 3, 80, 3, -1, 1))
sketch1.addConstraint(Sketcher.Constraint("Symmetric", 1, 3, 81, 3, -1, 1))
sketch1.addConstraint(Sketcher.Constraint("Symmetric", 13, 3, 21, 3, -2))
sketch1.addConstraint(Sketcher.Constraint("Symmetric", 12, 3, 22, 3, -2))
sketch1.addConstraint(Sketcher.Constraint("Symmetric", 11, 3, 23, 3, -2))
sketch1.addConstraint(Sketcher.Constraint("Symmetric", 9, 3, 24, 3, -2))
sketch1.addConstraint(Sketcher.Constraint("Symmetric", 8, 3, 25, 3, -2))
sketch1.addConstraint(Sketcher.Constraint("Symmetric", 10, 3, 26, 3, -2))
sketch1.addConstraint(Sketcher.Constraint("Symmetric", 1, 3, 27, 3, -2))
sketch1.addConstraint(Sketcher.Constraint("Symmetric", 2, 3, 28, 3, -2))
sketch1.addConstraint(Sketcher.Constraint("Symmetric", 6, 3, 29, 3, -2))
sketch1.addConstraint(Sketcher.Constraint("Symmetric", 5, 3, 30, 3, -2))
sketch1.addConstraint(Sketcher.Constraint("Symmetric", 7, 3, 31, 3, -2))
sketch1.addConstraint(Sketcher.Constraint("Symmetric", 3, 3, 32, 3, -2))
sketch1.addConstraint(Sketcher.Constraint("Symmetric", 4, 3, 33, 3, -2))
sketch1.addConstraint(Sketcher.Constraint("Symmetric", 15, 3, 34, 3, -2))
sketch1.addConstraint(Sketcher.Constraint("Symmetric", 14, 3, 35, 3, -2))
sketch1.addConstraint(Sketcher.Constraint("Symmetric", 16, 3, 36, 3, -2))
sketch1.addConstraint(Sketcher.Constraint("Symmetric", 17, 3, 37, 3, -2))
sketch1.addConstraint(Sketcher.Constraint("Symmetric", 18, 3, 38, 3, -2))
sketch1.addConstraint(Sketcher.Constraint("Symmetric", 19, 3, 39, 3, -2))
sketch1.addConstraint(Sketcher.Constraint("PointOnObject", 20, 3, -2))
sketch1.addConstraint(Sketcher.Constraint("PointOnObject", 40, 3, -1))
sketch1.addConstraint(Sketcher.Constraint("Diameter", 0, Q("7.5 in")))
sketch1.addConstraint(Sketcher.Constraint("Diameter", 60, Q("6.75 in")))
sketch1.addConstraint(Sketcher.Constraint("Diameter", 1, 3.3448))
sketch1.addConstraint(Sketcher.Constraint("DistanceY", 20, 3, -1, 1, Q("3.5625 in")))
sketch1.addConstraint(Sketcher.Constraint("DistanceX", 40, 3, -1, 1, Q("3.5625 in")))
sketch1.addConstraint(Sketcher.Constraint("DistanceX", 1, 3, -1, 1, 47.279589))
sketch1.addConstraint(Sketcher.Constraint("DistanceX", 2, 3, -1, 1, 53.187218))
sketch1.addConstraint(Sketcher.Constraint("DistanceY", 3, 3, -1, 1, 53.187218))
sketch1.addConstraint(Sketcher.Constraint("DistanceY", 4, 3, -1, 1, 47.279589))
sketch1.addConstraint(Sketcher.Constraint("DistanceX", 6, 3, -1, 1, 58.76693))
sketch1.addConstraint(Sketcher.Constraint("DistanceY", 7, 3, -1, 1, 58.76693))
sketch1.addConstraint(Sketcher.Constraint("DistanceY", 8, 3, -1, 1, 83.599549))
sketch1.addConstraint(Sketcher.Constraint("DistanceY", 12, 3, -1, 1, 89.373449))
sketch1.addConstraint(Sketcher.Constraint("DistanceX", 14, 3, -1, 1, 83.599549))
sketch1.addConstraint(Sketcher.Constraint("DistanceX", 18, 3, -1, 1, 89.373449))
sketch1.addConstraint(Sketcher.Constraint("DistanceY", 1, 3, -1, 1, 77.153277))
sketch1.addConstraint(Sketcher.Constraint("DistanceY", 2, 3, -1, 1, 73.205925))
sketch1.addConstraint(Sketcher.Constraint("DistanceX", 3, 3, -1, 1, 73.205925))
sketch1.addConstraint(Sketcher.Constraint("DistanceX", 4, 3, -1, 1, 77.153277))
sketch1.addConstraint(Sketcher.Constraint("DistanceX", 5, 3, -1, 1, 63.984325))
sketch1.addConstraint(Sketcher.Constraint("DistanceY", 5, 3, -1, 1, 63.984325))
sketch1.addConstraint(Sketcher.Constraint("DistanceY", 6, 3, -1, 1, 68.807235))
sketch1.addConstraint(Sketcher.Constraint("DistanceX", 7, 3, -1, 1, 68.807235))
sketch1.addConstraint(Sketcher.Constraint("DistanceX", 8, 3, -1, 1, 34.628067))
sketch1.addConstraint(Sketcher.Constraint("DistanceX", 9, 3, -1, 1, 27.962175))
sketch1.addConstraint(Sketcher.Constraint("DistanceY", 9, 3, -1, 1, 86.058727))
sketch1.addConstraint(Sketcher.Constraint("DistanceX", 10, 3, -1, 1, 41.080465))
sketch1.addConstraint(Sketcher.Constraint("DistanceY", 10, 3, -1, 1, 80.624953))
sketch1.addConstraint(Sketcher.Constraint("DistanceX", 11, 3, -1, 1, 21.123887))
sketch1.addConstraint(Sketcher.Constraint("DistanceY", 11, 3, -1, 1, 87.987323))
sketch1.addConstraint(Sketcher.Constraint("DistanceX", 12, 3, -1, 1, 14.155364))
sketch1.addConstraint(Sketcher.Constraint("DistanceX", 13, 3, -1, 1, 7.099567))
sketch1.addConstraint(Sketcher.Constraint("DistanceY", 13, 3, -1, 1, 90.208557))
sketch1.addConstraint(Sketcher.Constraint("DistanceY", 14, 3, -1, 1, 34.628067))
sketch1.addConstraint(Sketcher.Constraint("DistanceX", 15, 3, -1, 1, 80.624953))
sketch1.addConstraint(Sketcher.Constraint("DistanceY", 15, 3, -1, 1, 41.080465))
sketch1.addConstraint(Sketcher.Constraint("DistanceX", 16, 3, -1, 1, 86.058727))
sketch1.addConstraint(Sketcher.Constraint("DistanceY", 16, 3, -1, 1, 27.962175))
sketch1.addConstraint(Sketcher.Constraint("DistanceX", 17, 3, -1, 1, 87.987323))
sketch1.addConstraint(Sketcher.Constraint("DistanceY", 17, 3, -1, 1, 21.123887))
sketch1.addConstraint(Sketcher.Constraint("DistanceY", 18, 3, -1, 1, 14.155364))
sketch1.addConstraint(Sketcher.Constraint("DistanceX", 19, 3, -1, 1, 90.208557))
sketch1.addConstraint(Sketcher.Constraint("DistanceY", 19, 3, -1, 1, 7.099567))
pad1 = doc.addObject("PartDesign::Pad", "Pad")
body.addObject(pad1)
pad1.Profile = sketch1
pad1.Length = 4

doc.recompute()
